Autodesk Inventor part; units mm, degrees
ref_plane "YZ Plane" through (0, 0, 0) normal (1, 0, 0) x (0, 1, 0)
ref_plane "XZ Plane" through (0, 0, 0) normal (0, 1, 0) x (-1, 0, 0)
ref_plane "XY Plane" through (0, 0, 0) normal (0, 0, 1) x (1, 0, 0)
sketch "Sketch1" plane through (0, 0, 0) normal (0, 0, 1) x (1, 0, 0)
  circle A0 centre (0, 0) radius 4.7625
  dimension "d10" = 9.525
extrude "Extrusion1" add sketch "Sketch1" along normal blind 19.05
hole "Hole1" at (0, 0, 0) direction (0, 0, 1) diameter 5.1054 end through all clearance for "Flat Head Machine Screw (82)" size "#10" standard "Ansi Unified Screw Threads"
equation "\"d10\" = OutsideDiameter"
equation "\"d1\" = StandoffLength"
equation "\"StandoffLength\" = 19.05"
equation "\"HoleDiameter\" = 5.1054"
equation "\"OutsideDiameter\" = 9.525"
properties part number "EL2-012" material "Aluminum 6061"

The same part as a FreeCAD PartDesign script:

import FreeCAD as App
import Part
import Sketcher

V = App.Vector
Q = App.Units.Quantity

doc = App.newDocument("Part")
body = doc.addObject("PartDesign::Body", "Body")

sketch1 = doc.addObject("Sketcher::SketchObject", "Sketch")
body.addObject(sketch1)
sketch1.AttachmentSupport = (doc.XY_Plane, [""])
sketch1.MapMode = "FlatFace"
sketch1.addGeometry(Part.Circle(V(0, 0, 0), V(0, 0, 1), 4.7625), False)
sketch1.addConstraint([
    Sketcher.Constraint("Coincident", 0, 3, -1, 1),
    Sketcher.Constraint("Diameter", 0, Q("0.375 in")),
])
pad1 = doc.addObject("PartDesign::Pad", "Pad")
body.addObject(pad1)
pad1.Profile = sketch1
pad1.Length = Q("0.75 in")

sketch2 = doc.addObject("Sketcher::SketchObject", "Sketch001")
body.addObject(sketch2)
sketch2.AttachmentSupport = (doc.XY_Plane, [""])
sketch2.MapMode = "FlatFace"
sketch2.addGeometry(Part.Circle(V(0, 0, 0), V(0, 0, 1), 2.5527), False)
sketch2.addConstraint([
    Sketcher.Constraint("Coincident", 0, 3, -1, 1),
    Sketcher.Constraint("Diameter", 0, Q("0.201 in")),
])
doc.recompute()
hole = doc.addObject("PartDesign::Hole", "Hole")
body.addObject(hole)
hole.Profile = sketch2
hole.ThreadType = "None"
hole.Diameter = Q("0.201 in")
hole.DepthType = "ThroughAll"
hole.Reversed = True

doc.recompute()
